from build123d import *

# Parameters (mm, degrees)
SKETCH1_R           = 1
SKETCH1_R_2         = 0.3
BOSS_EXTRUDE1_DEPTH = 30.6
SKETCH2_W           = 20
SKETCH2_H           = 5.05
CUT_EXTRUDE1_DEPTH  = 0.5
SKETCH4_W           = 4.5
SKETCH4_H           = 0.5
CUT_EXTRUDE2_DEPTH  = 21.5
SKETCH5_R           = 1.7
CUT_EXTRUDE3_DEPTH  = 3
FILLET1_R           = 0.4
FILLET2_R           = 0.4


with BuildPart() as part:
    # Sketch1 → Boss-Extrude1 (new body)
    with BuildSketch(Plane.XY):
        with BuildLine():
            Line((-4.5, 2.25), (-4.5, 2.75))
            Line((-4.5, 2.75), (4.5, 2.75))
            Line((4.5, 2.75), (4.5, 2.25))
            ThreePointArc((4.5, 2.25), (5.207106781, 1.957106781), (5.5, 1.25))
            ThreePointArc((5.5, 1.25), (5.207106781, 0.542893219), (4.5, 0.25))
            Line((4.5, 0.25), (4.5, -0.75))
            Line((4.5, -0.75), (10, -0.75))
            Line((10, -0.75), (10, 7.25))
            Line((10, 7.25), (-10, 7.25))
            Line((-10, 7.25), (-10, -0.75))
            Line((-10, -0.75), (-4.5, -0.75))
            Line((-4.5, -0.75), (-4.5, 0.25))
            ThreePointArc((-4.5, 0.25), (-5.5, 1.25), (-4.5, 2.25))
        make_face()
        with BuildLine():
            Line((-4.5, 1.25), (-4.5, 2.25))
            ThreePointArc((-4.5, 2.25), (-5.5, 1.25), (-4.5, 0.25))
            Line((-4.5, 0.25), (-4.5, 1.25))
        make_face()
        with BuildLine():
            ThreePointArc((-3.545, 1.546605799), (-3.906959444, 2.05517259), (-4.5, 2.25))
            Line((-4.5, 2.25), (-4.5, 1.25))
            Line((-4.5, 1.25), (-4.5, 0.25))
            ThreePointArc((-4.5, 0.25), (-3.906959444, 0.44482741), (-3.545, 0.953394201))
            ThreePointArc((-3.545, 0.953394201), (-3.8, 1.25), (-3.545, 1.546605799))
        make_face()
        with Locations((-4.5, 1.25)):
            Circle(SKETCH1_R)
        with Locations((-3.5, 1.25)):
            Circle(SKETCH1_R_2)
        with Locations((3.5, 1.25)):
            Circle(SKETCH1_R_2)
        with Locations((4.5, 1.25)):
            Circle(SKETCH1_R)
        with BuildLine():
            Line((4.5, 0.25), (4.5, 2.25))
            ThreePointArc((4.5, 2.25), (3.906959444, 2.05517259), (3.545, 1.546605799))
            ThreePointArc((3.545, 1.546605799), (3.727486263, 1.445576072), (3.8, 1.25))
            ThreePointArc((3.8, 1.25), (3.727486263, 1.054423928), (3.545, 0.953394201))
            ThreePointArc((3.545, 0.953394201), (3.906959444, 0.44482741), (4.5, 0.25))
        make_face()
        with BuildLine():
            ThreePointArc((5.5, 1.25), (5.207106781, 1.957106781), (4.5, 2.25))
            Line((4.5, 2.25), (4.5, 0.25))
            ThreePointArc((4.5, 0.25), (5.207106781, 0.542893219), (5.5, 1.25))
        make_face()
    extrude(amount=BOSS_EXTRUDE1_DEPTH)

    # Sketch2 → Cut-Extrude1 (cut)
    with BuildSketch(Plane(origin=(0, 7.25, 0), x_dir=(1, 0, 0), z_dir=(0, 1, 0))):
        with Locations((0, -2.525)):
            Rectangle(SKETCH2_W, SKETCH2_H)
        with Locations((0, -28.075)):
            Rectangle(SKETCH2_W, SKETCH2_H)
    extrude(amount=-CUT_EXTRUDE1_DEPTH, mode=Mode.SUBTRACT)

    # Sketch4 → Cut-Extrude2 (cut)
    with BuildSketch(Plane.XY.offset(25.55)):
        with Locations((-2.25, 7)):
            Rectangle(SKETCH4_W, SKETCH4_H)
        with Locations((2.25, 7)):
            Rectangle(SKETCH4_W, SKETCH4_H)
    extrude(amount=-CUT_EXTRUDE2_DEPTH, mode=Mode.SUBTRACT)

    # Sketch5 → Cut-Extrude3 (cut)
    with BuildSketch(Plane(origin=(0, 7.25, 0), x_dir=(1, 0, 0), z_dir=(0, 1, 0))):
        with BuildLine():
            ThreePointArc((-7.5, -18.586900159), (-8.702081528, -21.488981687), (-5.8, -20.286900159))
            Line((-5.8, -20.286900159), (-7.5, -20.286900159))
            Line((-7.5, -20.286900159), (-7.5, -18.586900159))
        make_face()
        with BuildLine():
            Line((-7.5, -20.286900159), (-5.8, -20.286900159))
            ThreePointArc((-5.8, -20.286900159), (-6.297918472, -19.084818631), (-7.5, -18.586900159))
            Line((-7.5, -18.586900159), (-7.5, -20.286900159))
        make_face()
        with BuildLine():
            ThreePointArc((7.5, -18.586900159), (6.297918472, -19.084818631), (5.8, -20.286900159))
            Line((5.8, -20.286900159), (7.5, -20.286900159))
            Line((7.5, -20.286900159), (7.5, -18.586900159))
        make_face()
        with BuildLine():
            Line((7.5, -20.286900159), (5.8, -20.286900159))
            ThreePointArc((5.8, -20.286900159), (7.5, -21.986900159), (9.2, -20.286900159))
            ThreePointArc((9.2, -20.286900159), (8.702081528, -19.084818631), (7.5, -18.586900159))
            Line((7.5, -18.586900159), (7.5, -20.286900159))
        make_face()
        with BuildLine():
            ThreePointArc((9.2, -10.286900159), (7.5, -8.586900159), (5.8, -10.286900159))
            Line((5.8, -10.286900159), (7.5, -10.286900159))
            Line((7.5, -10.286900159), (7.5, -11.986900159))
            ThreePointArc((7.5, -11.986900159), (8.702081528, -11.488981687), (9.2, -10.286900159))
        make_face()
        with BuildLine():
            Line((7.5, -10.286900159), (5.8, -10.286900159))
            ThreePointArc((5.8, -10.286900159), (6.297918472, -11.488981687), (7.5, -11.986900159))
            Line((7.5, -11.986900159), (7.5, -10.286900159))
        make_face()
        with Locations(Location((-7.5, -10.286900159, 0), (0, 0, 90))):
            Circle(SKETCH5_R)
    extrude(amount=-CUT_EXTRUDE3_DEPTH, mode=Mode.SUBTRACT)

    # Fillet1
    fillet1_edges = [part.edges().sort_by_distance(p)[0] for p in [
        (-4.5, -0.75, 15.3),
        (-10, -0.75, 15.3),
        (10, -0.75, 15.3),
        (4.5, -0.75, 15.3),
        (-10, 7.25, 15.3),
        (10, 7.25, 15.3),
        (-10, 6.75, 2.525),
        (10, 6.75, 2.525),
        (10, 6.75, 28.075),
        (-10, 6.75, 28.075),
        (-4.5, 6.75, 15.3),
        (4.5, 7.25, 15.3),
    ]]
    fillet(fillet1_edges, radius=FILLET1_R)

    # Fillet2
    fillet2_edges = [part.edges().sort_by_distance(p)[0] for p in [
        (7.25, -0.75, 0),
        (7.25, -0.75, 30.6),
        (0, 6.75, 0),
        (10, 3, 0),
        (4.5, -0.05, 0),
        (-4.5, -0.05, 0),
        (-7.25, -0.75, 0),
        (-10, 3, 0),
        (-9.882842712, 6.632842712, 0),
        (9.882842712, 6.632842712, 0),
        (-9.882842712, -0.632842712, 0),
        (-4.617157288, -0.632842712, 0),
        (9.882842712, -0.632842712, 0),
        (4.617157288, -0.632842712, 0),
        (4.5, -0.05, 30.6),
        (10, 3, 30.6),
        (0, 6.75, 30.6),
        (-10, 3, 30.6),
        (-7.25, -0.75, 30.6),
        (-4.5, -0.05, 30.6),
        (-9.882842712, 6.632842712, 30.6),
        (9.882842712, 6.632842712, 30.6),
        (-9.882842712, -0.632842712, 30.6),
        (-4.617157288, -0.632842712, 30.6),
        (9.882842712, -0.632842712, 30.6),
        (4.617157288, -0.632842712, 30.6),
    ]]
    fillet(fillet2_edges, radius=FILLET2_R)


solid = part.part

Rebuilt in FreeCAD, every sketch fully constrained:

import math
import FreeCAD as App
import Part
import Sketcher


def edges_at(feature, points):
    """Names of the edges that pass closest to the given points."""
    edges = feature.Shape.Edges
    near = lambda p: min(range(len(edges)), key=lambda i: edges[i].distToShape(Part.Vertex(*p))[0])
    return sorted({f"Edge{near(p) + 1}" for p in points})


def add_polygon(sketch, points):
    """Adds a closed chain of lines whose ends are joined by coincident constraints."""
    first, n = sketch.GeometryCount, len(points)
    for a, b in zip(points, points[1:] + points[:1]):
        sketch.addGeometry(Part.LineSegment(App.Vector(*a, 0), App.Vector(*b, 0)), False)
    for i in range(n):
        sketch.addConstraint(Sketcher.Constraint("Coincident", first + i, 2, first + (i + 1) % n, 1))

doc = App.newDocument("Part")
body = doc.addObject("PartDesign::Body", "Body")

# Sketch on XY plane
sketch1 = doc.addObject("Sketcher::SketchObject", "Sketch")
body.addObject(sketch1)
sketch1.AttachmentSupport = (doc.XY_Plane, [""])
sketch1.MapMode = "FlatFace"
sketch1.addGeometry([
    Part.LineSegment(App.Vector(10, -0.75, 0), App.Vector(10, 7.25, 0)),  # 0
    Part.LineSegment(App.Vector(10, 7.25, 0), App.Vector(-10, 7.25, 0)),  # 1
    Part.LineSegment(App.Vector(-10, 7.25, 0), App.Vector(-10, -0.75, 0)),  # 2
    Part.LineSegment(App.Vector(-10, -0.75, 0), App.Vector(-4.5, -0.75, 0)),  # 3
    Part.LineSegment(App.Vector(-4.5, -0.75, 0), App.Vector(-4.5, 0.25, 0)),  # 4
    Part.ArcOfCircle(Part.Circle(App.Vector(-4.5, 1.25, 0), App.Vector(0, 0, 1), 1), math.radians(-90), math.radians(-17)),  # 5
    Part.ArcOfCircle(Part.Circle(App.Vector(-3.5, 1.25, 0), App.Vector(0, 0, 1), 0.3), math.radians(-99), math.radians(99)),  # 6
    Part.ArcOfCircle(Part.Circle(App.Vector(-4.5, 1.25, 0), App.Vector(0, 0, 1), 1), math.radians(17), math.radians(90)),  # 7
    Part.LineSegment(App.Vector(-4.5, 2.25, 0), App.Vector(-4.5, 2.75, 0)),  # 8
    Part.LineSegment(App.Vector(-4.5, 2.75, 0), App.Vector(4.5, 2.75, 0)),  # 9
    Part.LineSegment(App.Vector(4.5, 2.75, 0), App.Vector(4.5, 2.25, 0)),  # 10
    Part.ArcOfCircle(Part.Circle(App.Vector(4.5, 1.25, 0), App.Vector(0, 0, 1), 1), math.radians(90), math.radians(163)),  # 11
    Part.ArcOfCircle(Part.Circle(App.Vector(3.5, 1.25, 0), App.Vector(0, 0, 1), 0.3), math.radians(81), math.radians(279)),  # 12
    Part.ArcOfCircle(Part.Circle(App.Vector(4.5, 1.25, 0), App.Vector(0, 0, 1), 1), math.radians(-163), math.radians(-90)),  # 13
    Part.LineSegment(App.Vector(4.5, 0.25, 0), App.Vector(4.5, -0.75, 0)),  # 14
    Part.LineSegment(App.Vector(4.5, -0.75, 0), App.Vector(10, -0.75, 0)),  # 15
], False)
sketch1.addConstraint([
    Sketcher.Constraint("Coincident", 0, 2, 1, 1),
    Sketcher.Constraint("Coincident", 1, 2, 2, 1),
    Sketcher.Constraint("Coincident", 2, 2, 3, 1),
    Sketcher.Constraint("Coincident", 3, 2, 4, 1),
    Sketcher.Constraint("Coincident", 4, 2, 5, 1),
    Sketcher.Constraint("Coincident", 5, 2, 6, 1),
    Sketcher.Constraint("Coincident", 6, 2, 7, 1),
    Sketcher.Constraint("Coincident", 7, 2, 8, 1),
    Sketcher.Constraint("Coincident", 8, 2, 9, 1),
    Sketcher.Constraint("Coincident", 9, 2, 10, 1),
    Sketcher.Constraint("Coincident", 10, 2, 11, 1),
    Sketcher.Constraint("Coincident", 11, 2, 12, 1),
    Sketcher.Constraint("Coincident", 12, 2, 13, 1),
    Sketcher.Constraint("Coincident", 13, 2, 14, 1),
    Sketcher.Constraint("Coincident", 14, 2, 15, 1),
    Sketcher.Constraint("Coincident", 15, 2, 0, 1),
    Sketcher.Constraint("Vertical", 0),
    Sketcher.Constraint("Horizontal", 1),
    Sketcher.Constraint("Vertical", 2),
    Sketcher.Constraint("Horizontal", 3),
    Sketcher.Constraint("Vertical", 4),
    Sketcher.Constraint("Vertical", 8),
    Sketcher.Constraint("Horizontal", 9),
    Sketcher.Constraint("Vertical", 10),
    Sketcher.Constraint("Vertical", 14),
    Sketcher.Constraint("Horizontal", 15),
    Sketcher.Constraint("Coincident", 7, 3, 5, 3),
    Sketcher.Constraint("Coincident", 13, 3, 11, 3),
    Sketcher.Constraint("Equal", 5, 7),
    Sketcher.Constraint("Equal", 7, 11),
    Sketcher.Constraint("Equal", 6, 12),
    Sketcher.Constraint("Equal", 11, 13),
    Sketcher.Constraint("Symmetric", 5, 3, 11, 3, -2),
    Sketcher.Constraint("Symmetric", 6, 3, 12, 3, -2),
    Sketcher.Constraint("Symmetric", 3, 2, 14, 2, -2),
    Sketcher.Constraint("Horizontal", 5, 3, 6, 3),
    Sketcher.Constraint("Vertical", 7, 3, 3, 2),
    Sketcher.Constraint("Vertical", 4, 2, 7, 2),
    Sketcher.Constraint("Vertical", 13, 3, 9, 2),
    Sketcher.Constraint("Equal", 3, 15),
    Sketcher.Constraint("Radius", 5, 1.0),
    Sketcher.Constraint("Radius", 6, 0.3),
    Sketcher.Constraint("DistanceX", 1, 2, 1, 1, 20.0),
    Sketcher.Constraint("DistanceX", 9, 1, 9, 2, 9.0),
    Sketcher.Constraint("DistanceY", 0, 1, 0, 2, 8.0),
    Sketcher.Constraint("DistanceY", 4, 1, 4, 2, 1.0),
    Sketcher.Constraint("DistanceY", 8, 1, 8, 2, 0.5),
    Sketcher.Constraint("DistanceX", 5, 3, 6, 3, 1.0),
    Sketcher.Constraint("DistanceY", -1, 1, 5, 3, 1.25),
])
pad1 = doc.addObject("PartDesign::Pad", "Pad")
body.addObject(pad1)
pad1.Profile = sketch1
pad1.Length = 30.6

# Sketch on XZ plane
sketch2 = doc.addObject("Sketcher::SketchObject", "Sketch001")
body.addObject(sketch2)
sketch2.AttachmentSupport = (doc.XZ_Plane, [""])
sketch2.MapMode = "FlatFace"
sketch2.AttachmentOffset = App.Placement(App.Vector(0, 0, -7.25), App.Rotation())
add_polygon(sketch2, [(-10, 0), (-10, 5), (10, 5), (10, 0)])  # lines 0-3
add_polygon(sketch2, [(-10, 26), (-10, 31), (10, 31), (10, 26)])  # lines 4-7
sketch2.addConstraint([
    Sketcher.Constraint("Vertical", 0),
    Sketcher.Constraint("Horizontal", 1),
    Sketcher.Constraint("Vertical", 2),
    Sketcher.Constraint("Horizontal", 3),
    Sketcher.Constraint("Vertical", 4),
    Sketcher.Constraint("Horizontal", 5),
    Sketcher.Constraint("Vertical", 6),
    Sketcher.Constraint("Horizontal", 7),
    Sketcher.Constraint("Symmetric", 2, 2, 3, 2, -1, 1),
    Sketcher.Constraint("Vertical", 3, 2, 4, 2),
    Sketcher.Constraint("Vertical", 2, 2, 5, 2),
    Sketcher.Constraint("Equal", 2, 4),
    Sketcher.Constraint("DistanceX", 1, 1, 1, 2, 20.0),
    Sketcher.Constraint("DistanceY", 0, 1, 0, 2, 5.05),
    Sketcher.Constraint("DistanceY", -1, 1, 4, 2, 30.6),
])
pocket1 = doc.addObject("PartDesign::Pocket", "Pocket")
body.addObject(pocket1)
pocket1.Profile = sketch2
pocket1.Length = 0.5
pocket1.Reversed = True

# Sketch on XY plane
sketch3 = doc.addObject("Sketcher::SketchObject", "Sketch002")
body.addObject(sketch3)
sketch3.AttachmentSupport = (doc.XY_Plane, [""])
sketch3.MapMode = "FlatFace"
sketch3.AttachmentOffset = App.Placement(App.Vector(0, 0, 25.55), App.Rotation())
add_polygon(sketch3, [(-4.5, 7.2), (-4.5, 6.8), (4.5, 6.8), (4.5, 7.2)])  # lines 0-3
sketch3.addConstraint([
    Sketcher.Constraint("Vertical", 0),
    Sketcher.Constraint("Horizontal", 1),
    Sketcher.Constraint("Vertical", 2),
    Sketcher.Constraint("Horizontal", 3),
    Sketcher.Constraint("DistanceX", 1, 1, 1, 2, 9.0),
    Sketcher.Constraint("DistanceY", 0, 2, 0, 1, 0.5),
    Sketcher.Constraint("DistanceX", 0, 2, -1, 1, 4.5),
    Sketcher.Constraint("DistanceY", -1, 1, 0, 2, 6.75),
])
pocket2 = doc.addObject("PartDesign::Pocket", "Pocket001")
body.addObject(pocket2)
pocket2.Profile = sketch3
pocket2.Length = 21.5

# Sketch on XZ plane
sketch4 = doc.addObject("Sketcher::SketchObject", "Sketch003")
body.addObject(sketch4)
sketch4.AttachmentSupport = (doc.XZ_Plane, [""])
sketch4.MapMode = "FlatFace"
sketch4.AttachmentOffset = App.Placement(App.Vector(0, 0, -7.25), App.Rotation())
sketch4.addGeometry([
    Part.ArcOfCircle(Part.Circle(App.Vector(-7.5, 20.3, 0), App.Vector(0, 0, 1), 1.7), math.radians(0), math.radians(270)),  # 0
    Part.ArcOfCircle(Part.Circle(App.Vector(-7.5, 20.3, 0), App.Vector(0, 0, 1), 1.7), math.radians(-90), math.radians(0)),  # 1
    Part.ArcOfCircle(Part.Circle(App.Vector(7.5, 20.3, 0), App.Vector(0, 0, 1), 1.7), math.radians(180), math.radians(270)),  # 2
    Part.ArcOfCircle(Part.Circle(App.Vector(7.5, 20.3, 0), App.Vector(0, 0, 1), 1.7), math.radians(0), math.radians(180)),  # 3
    Part.ArcOfCircle(Part.Circle(App.Vector(7.5, 20.3, 0), App.Vector(0, 0, 1), 1.7), math.radians(-90), math.radians(0)),  # 4
    Part.ArcOfCircle(Part.Circle(App.Vector(7.5, 10.3, 0), App.Vector(0, 0, 1), 1.7), math.radians(180), math.radians(360)),  # 5
    Part.ArcOfCircle(Part.Circle(App.Vector(7.5, 10.3, 0), App.Vector(0, 0, 1), 1.7), math.radians(90), math.radians(180)),  # 6
    Part.ArcOfCircle(Part.Circle(App.Vector(7.5, 10.3, 0), App.Vector(0, 0, 1), 1.7), math.radians(0), math.radians(90)),  # 7
    Part.Circle(App.Vector(-7.5, 10.3, 0), App.Vector(0, 0, 1), 1.7),  # 8
], False)
sketch4.addConstraint([
    Sketcher.Constraint("Tangent", 0, 1, 1, 2),
    Sketcher.Constraint("Coincident", 1, 1, 0, 2),
    Sketcher.Constraint("Tangent", 2, 1, 3, 2),
    Sketcher.Constraint("Tangent", 3, 1, 4, 2),
    Sketcher.Constraint("Tangent", 4, 1, 2, 2),
    Sketcher.Constraint("Tangent", 5, 1, 6, 2),
    Sketcher.Constraint("Tangent", 6, 1, 7, 2),
    Sketcher.Constraint("Tangent", 7, 1, 5, 2),
    Sketcher.Constraint("Equal", 1, 2),
    Sketcher.Constraint("Equal", 4, 5),
    Sketcher.Constraint("Equal", 7, 8),
    Sketcher.Constraint("Symmetric", 0, 3, 2, 3, -2),
    Sketcher.Constraint("Symmetric", 5, 3, 8, 3, -2),
    Sketcher.Constraint("Horizontal", 4, 3, 0, 1),
    Sketcher.Constraint("Horizontal", 0, 1, 2, 1),
    Sketcher.Constraint("Horizontal", 2, 1, 3, 1),
    Sketcher.Constraint("Horizontal", 8, 3, 5, 1),
    Sketcher.Constraint("Horizontal", 5, 1, 7, 1),
    Sketcher.Constraint("Vertical", 4, 3, 5, 3),
    Sketcher.Constraint("Vertical", 8, 3, 1, 1),
    Sketcher.Constraint("Vertical", 7, 3, 4, 1),
    Sketcher.Constraint("Vertical", 4, 1, 6, 1),
    Sketcher.Constraint("Diameter", 8, 3.4),
    Sketcher.Constraint("DistanceX", 0, 3, 2, 3, 15.0),
    Sketcher.Constraint("DistanceY", 5, 3, 2, 3, 10.0),
    Sketcher.Constraint("DistanceY", -1, 1, 0, 3, 20.2869),
])
pocket3 = doc.addObject("PartDesign::Pocket", "Pocket002")
body.addObject(pocket3)
pocket3.Profile = sketch4
pocket3.Length = 3
pocket3.Reversed = True
doc.recompute()

fillet = doc.addObject("PartDesign::Fillet", "Fillet")
body.addObject(fillet)
fillet.Base = (pocket3, edges_at(pocket3, [
    (-4.5, -0.75, 15.3),
    (-10, -0.75, 15.3),
    (10, -0.75, 15.3),
    (4.5, -0.75, 15.3),
    (-10, 7.25, 15.3),
    (10, 7.25, 15.3),
    (-10, 6.75, 2.525),
    (10, 6.75, 2.525),
    (10, 6.75, 28.075),
    (-10, 6.75, 28.075),
    (-4.5, 6.75, 15.3),
    (4.5, 7.25, 15.3),
]))
fillet.Radius = 0.4
doc.recompute()

fillet2 = doc.addObject("PartDesign::Fillet", "Fillet001")
body.addObject(fillet2)
fillet2.Base = (fillet, edges_at(fillet, [
    (7.25, -0.75, 0),
    (7.25, -0.75, 30.6),
    (0, 6.75, 0),
    (10, 3, 0),
    (4.5, -0.05, 0),
    (-4.5, -0.05, 0),
    (-7.25, -0.75, 0),
    (-10, 3, 0),
    (-9.883, 6.633, 0),
    (9.883, 6.633, 0),
    (-9.883, -0.633, 0),
    (-4.617, -0.633, 0),
    (9.883, -0.633, 0),
    (4.617, -0.633, 0),
    (4.5, -0.05, 30.6),
    (10, 3, 30.6),
    (0, 6.75, 30.6),
    (-10, 3, 30.6),
    (-7.25, -0.75, 30.6),
    (-4.5, -0.05, 30.6),
    (-9.883, 6.633, 30.6),
    (9.883, 6.633, 30.6),
    (-9.883, -0.633, 30.6),
    (-4.617, -0.633, 30.6),
    (9.883, -0.633, 30.6),
    (4.617, -0.633, 30.6),
]))
fillet2.Radius = 0.4

doc.recompute()
